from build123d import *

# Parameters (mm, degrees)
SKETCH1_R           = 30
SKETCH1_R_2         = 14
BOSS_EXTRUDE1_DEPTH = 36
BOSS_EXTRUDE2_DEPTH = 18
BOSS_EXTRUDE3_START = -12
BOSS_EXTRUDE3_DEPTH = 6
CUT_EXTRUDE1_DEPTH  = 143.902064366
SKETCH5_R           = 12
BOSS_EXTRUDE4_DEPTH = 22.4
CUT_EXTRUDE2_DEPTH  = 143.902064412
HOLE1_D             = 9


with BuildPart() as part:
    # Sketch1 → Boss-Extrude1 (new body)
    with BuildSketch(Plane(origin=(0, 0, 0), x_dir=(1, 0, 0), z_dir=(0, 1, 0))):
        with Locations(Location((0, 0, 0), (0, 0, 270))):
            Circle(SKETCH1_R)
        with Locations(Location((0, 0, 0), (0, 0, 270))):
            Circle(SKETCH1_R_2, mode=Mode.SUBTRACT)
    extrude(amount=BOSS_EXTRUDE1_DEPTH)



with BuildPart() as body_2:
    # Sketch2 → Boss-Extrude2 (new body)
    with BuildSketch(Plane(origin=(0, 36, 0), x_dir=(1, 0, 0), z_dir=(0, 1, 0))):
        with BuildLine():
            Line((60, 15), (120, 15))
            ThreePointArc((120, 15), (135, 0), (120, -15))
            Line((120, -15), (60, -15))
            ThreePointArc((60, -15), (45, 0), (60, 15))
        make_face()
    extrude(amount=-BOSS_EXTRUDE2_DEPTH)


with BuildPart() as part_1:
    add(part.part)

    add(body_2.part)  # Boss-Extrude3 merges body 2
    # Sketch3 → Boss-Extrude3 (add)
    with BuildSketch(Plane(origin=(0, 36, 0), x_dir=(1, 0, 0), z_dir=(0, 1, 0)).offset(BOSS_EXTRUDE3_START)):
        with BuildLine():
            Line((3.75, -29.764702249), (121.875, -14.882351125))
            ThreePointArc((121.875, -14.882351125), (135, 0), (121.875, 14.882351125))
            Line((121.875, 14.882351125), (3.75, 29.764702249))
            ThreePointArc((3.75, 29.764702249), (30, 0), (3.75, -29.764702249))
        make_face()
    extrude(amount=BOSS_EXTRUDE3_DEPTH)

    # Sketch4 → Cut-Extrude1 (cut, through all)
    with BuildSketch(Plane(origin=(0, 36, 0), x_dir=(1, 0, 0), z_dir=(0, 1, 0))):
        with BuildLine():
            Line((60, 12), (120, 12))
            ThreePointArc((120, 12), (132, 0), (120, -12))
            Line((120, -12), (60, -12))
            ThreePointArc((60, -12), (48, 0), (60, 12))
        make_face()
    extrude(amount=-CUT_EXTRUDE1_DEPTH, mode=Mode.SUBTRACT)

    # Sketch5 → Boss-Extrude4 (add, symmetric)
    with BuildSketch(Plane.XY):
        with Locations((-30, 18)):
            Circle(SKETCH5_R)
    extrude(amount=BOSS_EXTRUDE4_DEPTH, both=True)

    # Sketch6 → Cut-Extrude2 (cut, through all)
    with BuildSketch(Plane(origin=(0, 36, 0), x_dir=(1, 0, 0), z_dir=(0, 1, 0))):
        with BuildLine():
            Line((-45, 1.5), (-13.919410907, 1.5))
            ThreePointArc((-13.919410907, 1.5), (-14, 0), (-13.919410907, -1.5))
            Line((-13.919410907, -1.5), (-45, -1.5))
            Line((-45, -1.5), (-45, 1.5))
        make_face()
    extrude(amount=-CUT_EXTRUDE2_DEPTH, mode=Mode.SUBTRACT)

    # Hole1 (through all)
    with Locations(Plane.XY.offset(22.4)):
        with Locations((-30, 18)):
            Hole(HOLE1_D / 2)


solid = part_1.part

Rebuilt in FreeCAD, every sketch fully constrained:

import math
import FreeCAD as App
import Part
import Sketcher
Q = App.Units.Quantity

doc = App.newDocument("Part")
body = doc.addObject("PartDesign::Body", "Body")

sketch1 = body.newObject("Sketcher::SketchObject", "Sketch")
sketch1.AttachmentSupport = (doc.getObject("XZ_Plane"), [""])
sketch1.MapMode = "FlatFace"
sketch1.addGeometry([
    Part.Circle(App.Vector(0, 0, 0), App.Vector(0, 0, 1), 30),
    Part.Circle(App.Vector(0, 0, 0), App.Vector(0, 0, 1), 14),
], False)
sketch1.addConstraint([
    Sketcher.Constraint("Coincident", 0, 3, -1, 1),
    Sketcher.Constraint("Coincident", 1, 3, -1, 1),
    Sketcher.Constraint("Diameter", 0, Q("60 mm")),
    Sketcher.Constraint("Diameter", 1, Q("28 mm")),
])
pad1 = body.newObject("PartDesign::Pad", "Pad")
pad1.Profile = sketch1
pad1.Length = 36
pad1.Reversed = True
body2 = doc.addObject("PartDesign::Body", "Body001")

sketch2 = body2.newObject("Sketcher::SketchObject", "Sketch001")
sketch2.AttachmentSupport = (doc.getObject("XZ_Plane001"), [""])
sketch2.MapMode = "FlatFace"
sketch2.AttachmentOffset = App.Placement(App.Vector(0, 0, -36), App.Rotation())
sketch2.addGeometry([
    Part.LineSegment(App.Vector(120, -15, 0), App.Vector(60, -15, 0)),
    Part.ArcOfCircle(Part.Circle(App.Vector(60, 0, 0), App.Vector(0, 0, 1), 15), math.radians(90), math.radians(270)),
    Part.LineSegment(App.Vector(60, 15, 0), App.Vector(120, 15, 0)),
    Part.ArcOfCircle(Part.Circle(App.Vector(120, 0, 0), App.Vector(0, 0, 1), 15), math.radians(-90), math.radians(90)),
], False)
sketch2.addConstraint([
    Sketcher.Constraint("Tangent", 0, 2, 1, 2),
    Sketcher.Constraint("Tangent", 1, 1, 2, 1),
    Sketcher.Constraint("Tangent", 2, 2, 3, 2),
    Sketcher.Constraint("Tangent", 3, 1, 0, 1),
    Sketcher.Constraint("Horizontal", 0),
    Sketcher.Constraint("Horizontal", 2),
    Sketcher.Constraint("PointOnObject", 1, 3, -1),
    Sketcher.Constraint("Radius", 1, Q("15 mm")),
    Sketcher.Constraint("DistanceX", 0, 2, 0, 1, Q("60 mm")),
    Sketcher.Constraint("DistanceX", -1, 1, 1, 3, Q("60 mm")),
])
pad2 = body2.newObject("PartDesign::Pad", "Pad001")
pad2.Profile = sketch2
pad2.Length = 18
body.AllowCompound = True
doc.recompute()

boolean = body.newObject("PartDesign::Boolean", "Boolean")
boolean.Type = "Fuse"
boolean.addObjects([body2])

sketch3 = body.newObject("Sketcher::SketchObject", "Sketch002")
sketch3.AttachmentSupport = (doc.getObject("XZ_Plane"), [""])
sketch3.MapMode = "FlatFace"
sketch3.AttachmentOffset = App.Placement(App.Vector(0, 0, -24), App.Rotation())
sketch3.addGeometry([
    Part.LineSegment(App.Vector(3.75, 29.764702, 0), App.Vector(121.875, 14.882351, 0)),
    Part.ArcOfCircle(Part.Circle(App.Vector(120, 0, 0), App.Vector(0, 0, 1), 15), math.radians(-82.819244), math.radians(82.819244)),
    Part.LineSegment(App.Vector(121.875, -14.882351, 0), App.Vector(3.75, -29.764702, 0)),
    Part.ArcOfCircle(Part.Circle(App.Vector(0, 0, 0), App.Vector(0, 0, 1), 30), math.radians(-82.819244), math.radians(82.819244)),
], False)
sketch3.addConstraint([
    Sketcher.Constraint("Tangent", 0, 2, 1, 2),
    Sketcher.Constraint("Tangent", 1, 1, 2, 1),
    Sketcher.Constraint("Tangent", 2, 2, 3, 1),
    Sketcher.Constraint("Tangent", 3, 2, 0, 1),
    Sketcher.Constraint("Coincident", 3, 3, -1, 1),
    Sketcher.Constraint("PointOnObject", 1, 3, -1),
    Sketcher.Constraint("Radius", 1, Q("15 mm")),
    Sketcher.Constraint("Radius", 3, Q("30 mm")),
    Sketcher.Constraint("DistanceX", -1, 1, 1, 3, Q("120 mm")),
])
pad3 = body.newObject("PartDesign::Pad", "Pad002")
pad3.Profile = sketch3
pad3.Length = 6
pad3.Reversed = True

sketch4 = body.newObject("Sketcher::SketchObject", "Sketch003")
sketch4.AttachmentSupport = (doc.getObject("XZ_Plane"), [""])
sketch4.MapMode = "FlatFace"
sketch4.AttachmentOffset = App.Placement(App.Vector(0, 0, -36), App.Rotation())
sketch4.addGeometry([
    Part.LineSegment(App.Vector(120, -12, 0), App.Vector(60, -12, 0)),
    Part.ArcOfCircle(Part.Circle(App.Vector(60, 0, 0), App.Vector(0, 0, 1), 12), math.radians(90), math.radians(270)),
    Part.LineSegment(App.Vector(60, 12, 0), App.Vector(120, 12, 0)),
    Part.ArcOfCircle(Part.Circle(App.Vector(120, 0, 0), App.Vector(0, 0, 1), 12), math.radians(-90), math.radians(90)),
], False)
sketch4.addConstraint([
    Sketcher.Constraint("Tangent", 0, 2, 1, 2),
    Sketcher.Constraint("Tangent", 1, 1, 2, 1),
    Sketcher.Constraint("Tangent", 2, 2, 3, 2),
    Sketcher.Constraint("Tangent", 3, 1, 0, 1),
    Sketcher.Constraint("Horizontal", 0),
    Sketcher.Constraint("Horizontal", 2),
    Sketcher.Constraint("PointOnObject", 1, 3, -1),
    Sketcher.Constraint("Radius", 1, Q("12 mm")),
    Sketcher.Constraint("DistanceX", 0, 2, 0, 1, Q("60 mm")),
    Sketcher.Constraint("DistanceX", -1, 1, 1, 3, Q("60 mm")),
])
pocket1 = body.newObject("PartDesign::Pocket", "Pocket")
pocket1.Profile = sketch4
pocket1.Type = "ThroughAll"
pocket1.Reversed = True

sketch5 = body.newObject("Sketcher::SketchObject", "Sketch004")
sketch5.AttachmentSupport = (doc.getObject("XY_Plane"), [""])
sketch5.MapMode = "FlatFace"
sketch5.addGeometry(Part.Circle(App.Vector(-30, 18, 0), App.Vector(0, 0, 1), 12), False)
sketch5.addConstraint([
    Sketcher.Constraint("Diameter", 0, Q("24 mm")),
    Sketcher.Constraint("DistanceX", 0, 3, -1, 1, Q("30 mm")),
    Sketcher.Constraint("DistanceY", -1, 1, 0, 3, Q("18 mm")),
])
pad4 = body.newObject("PartDesign::Pad", "Pad003")
pad4.Profile = sketch5
pad4.Length = 44.8
pad4.Midplane = True

sketch6 = body.newObject("Sketcher::SketchObject", "Sketch005")
sketch6.AttachmentSupport = (doc.getObject("XZ_Plane"), [""])
sketch6.MapMode = "FlatFace"
sketch6.AttachmentOffset = App.Placement(App.Vector(0, 0, -36), App.Rotation())
sketch6.addGeometry([
    Part.LineSegment(App.Vector(-13.919411, -1.5, 0), App.Vector(-45, -1.5, 0)),
    Part.LineSegment(App.Vector(-45, -1.5, 0), App.Vector(-45, 1.5, 0)),
    Part.LineSegment(App.Vector(-45, 1.5, 0), App.Vector(-13.919411, 1.5, 0)),
    Part.ArcOfCircle(Part.Circle(App.Vector(0, 0, 0), App.Vector(0, 0, 1), 14), math.radians(173.84936), math.radians(186.15064)),
], False)
sketch6.addConstraint([
    Sketcher.Constraint("Coincident", 0, 2, 1, 1),
    Sketcher.Constraint("Coincident", 1, 2, 2, 1),
    Sketcher.Constraint("Coincident", 2, 2, 3, 1),
    Sketcher.Constraint("Coincident", 3, 2, 0, 1),
    Sketcher.Constraint("Horizontal", 0),
    Sketcher.Constraint("Vertical", 1),
    Sketcher.Constraint("Horizontal", 2),
    Sketcher.Constraint("Coincident", 3, 3, -1, 1),
    Sketcher.Constraint("Vertical", 2, 2, 3, 2),
    Sketcher.Constraint("Radius", 3, Q("14 mm")),
    Sketcher.Constraint("DistanceY", 1, 1, 1, 2, Q("3 mm")),
    Sketcher.Constraint("DistanceX", 0, 2, -1, 1, Q("45 mm")),
])
pocket2 = body.newObject("PartDesign::Pocket", "Pocket001")
pocket2.Profile = sketch6
pocket2.Type = "ThroughAll"
pocket2.Reversed = True

sketch7 = body.newObject("Sketcher::SketchObject", "Sketch006")
sketch7.AttachmentSupport = (doc.getObject("XY_Plane"), [""])
sketch7.MapMode = "FlatFace"
sketch7.AttachmentOffset = App.Placement(App.Vector(0, 0, 22.4), App.Rotation())
sketch7.addGeometry(Part.Circle(App.Vector(-30, 18, 0), App.Vector(0, 0, 1), 4.5), False)
sketch7.addConstraint([
    Sketcher.Constraint("Diameter", 0, Q("9 mm")),
    Sketcher.Constraint("DistanceX", 0, 3, -1, 1, Q("30 mm")),
    Sketcher.Constraint("DistanceY", -1, 1, 0, 3, Q("18 mm")),
])
doc.recompute()
hole = body.newObject("PartDesign::Hole", "Hole")
hole.Profile = sketch7
hole.ThreadType = "None"
hole.Diameter = 9
hole.DepthType = "ThroughAll"

doc.recompute()
